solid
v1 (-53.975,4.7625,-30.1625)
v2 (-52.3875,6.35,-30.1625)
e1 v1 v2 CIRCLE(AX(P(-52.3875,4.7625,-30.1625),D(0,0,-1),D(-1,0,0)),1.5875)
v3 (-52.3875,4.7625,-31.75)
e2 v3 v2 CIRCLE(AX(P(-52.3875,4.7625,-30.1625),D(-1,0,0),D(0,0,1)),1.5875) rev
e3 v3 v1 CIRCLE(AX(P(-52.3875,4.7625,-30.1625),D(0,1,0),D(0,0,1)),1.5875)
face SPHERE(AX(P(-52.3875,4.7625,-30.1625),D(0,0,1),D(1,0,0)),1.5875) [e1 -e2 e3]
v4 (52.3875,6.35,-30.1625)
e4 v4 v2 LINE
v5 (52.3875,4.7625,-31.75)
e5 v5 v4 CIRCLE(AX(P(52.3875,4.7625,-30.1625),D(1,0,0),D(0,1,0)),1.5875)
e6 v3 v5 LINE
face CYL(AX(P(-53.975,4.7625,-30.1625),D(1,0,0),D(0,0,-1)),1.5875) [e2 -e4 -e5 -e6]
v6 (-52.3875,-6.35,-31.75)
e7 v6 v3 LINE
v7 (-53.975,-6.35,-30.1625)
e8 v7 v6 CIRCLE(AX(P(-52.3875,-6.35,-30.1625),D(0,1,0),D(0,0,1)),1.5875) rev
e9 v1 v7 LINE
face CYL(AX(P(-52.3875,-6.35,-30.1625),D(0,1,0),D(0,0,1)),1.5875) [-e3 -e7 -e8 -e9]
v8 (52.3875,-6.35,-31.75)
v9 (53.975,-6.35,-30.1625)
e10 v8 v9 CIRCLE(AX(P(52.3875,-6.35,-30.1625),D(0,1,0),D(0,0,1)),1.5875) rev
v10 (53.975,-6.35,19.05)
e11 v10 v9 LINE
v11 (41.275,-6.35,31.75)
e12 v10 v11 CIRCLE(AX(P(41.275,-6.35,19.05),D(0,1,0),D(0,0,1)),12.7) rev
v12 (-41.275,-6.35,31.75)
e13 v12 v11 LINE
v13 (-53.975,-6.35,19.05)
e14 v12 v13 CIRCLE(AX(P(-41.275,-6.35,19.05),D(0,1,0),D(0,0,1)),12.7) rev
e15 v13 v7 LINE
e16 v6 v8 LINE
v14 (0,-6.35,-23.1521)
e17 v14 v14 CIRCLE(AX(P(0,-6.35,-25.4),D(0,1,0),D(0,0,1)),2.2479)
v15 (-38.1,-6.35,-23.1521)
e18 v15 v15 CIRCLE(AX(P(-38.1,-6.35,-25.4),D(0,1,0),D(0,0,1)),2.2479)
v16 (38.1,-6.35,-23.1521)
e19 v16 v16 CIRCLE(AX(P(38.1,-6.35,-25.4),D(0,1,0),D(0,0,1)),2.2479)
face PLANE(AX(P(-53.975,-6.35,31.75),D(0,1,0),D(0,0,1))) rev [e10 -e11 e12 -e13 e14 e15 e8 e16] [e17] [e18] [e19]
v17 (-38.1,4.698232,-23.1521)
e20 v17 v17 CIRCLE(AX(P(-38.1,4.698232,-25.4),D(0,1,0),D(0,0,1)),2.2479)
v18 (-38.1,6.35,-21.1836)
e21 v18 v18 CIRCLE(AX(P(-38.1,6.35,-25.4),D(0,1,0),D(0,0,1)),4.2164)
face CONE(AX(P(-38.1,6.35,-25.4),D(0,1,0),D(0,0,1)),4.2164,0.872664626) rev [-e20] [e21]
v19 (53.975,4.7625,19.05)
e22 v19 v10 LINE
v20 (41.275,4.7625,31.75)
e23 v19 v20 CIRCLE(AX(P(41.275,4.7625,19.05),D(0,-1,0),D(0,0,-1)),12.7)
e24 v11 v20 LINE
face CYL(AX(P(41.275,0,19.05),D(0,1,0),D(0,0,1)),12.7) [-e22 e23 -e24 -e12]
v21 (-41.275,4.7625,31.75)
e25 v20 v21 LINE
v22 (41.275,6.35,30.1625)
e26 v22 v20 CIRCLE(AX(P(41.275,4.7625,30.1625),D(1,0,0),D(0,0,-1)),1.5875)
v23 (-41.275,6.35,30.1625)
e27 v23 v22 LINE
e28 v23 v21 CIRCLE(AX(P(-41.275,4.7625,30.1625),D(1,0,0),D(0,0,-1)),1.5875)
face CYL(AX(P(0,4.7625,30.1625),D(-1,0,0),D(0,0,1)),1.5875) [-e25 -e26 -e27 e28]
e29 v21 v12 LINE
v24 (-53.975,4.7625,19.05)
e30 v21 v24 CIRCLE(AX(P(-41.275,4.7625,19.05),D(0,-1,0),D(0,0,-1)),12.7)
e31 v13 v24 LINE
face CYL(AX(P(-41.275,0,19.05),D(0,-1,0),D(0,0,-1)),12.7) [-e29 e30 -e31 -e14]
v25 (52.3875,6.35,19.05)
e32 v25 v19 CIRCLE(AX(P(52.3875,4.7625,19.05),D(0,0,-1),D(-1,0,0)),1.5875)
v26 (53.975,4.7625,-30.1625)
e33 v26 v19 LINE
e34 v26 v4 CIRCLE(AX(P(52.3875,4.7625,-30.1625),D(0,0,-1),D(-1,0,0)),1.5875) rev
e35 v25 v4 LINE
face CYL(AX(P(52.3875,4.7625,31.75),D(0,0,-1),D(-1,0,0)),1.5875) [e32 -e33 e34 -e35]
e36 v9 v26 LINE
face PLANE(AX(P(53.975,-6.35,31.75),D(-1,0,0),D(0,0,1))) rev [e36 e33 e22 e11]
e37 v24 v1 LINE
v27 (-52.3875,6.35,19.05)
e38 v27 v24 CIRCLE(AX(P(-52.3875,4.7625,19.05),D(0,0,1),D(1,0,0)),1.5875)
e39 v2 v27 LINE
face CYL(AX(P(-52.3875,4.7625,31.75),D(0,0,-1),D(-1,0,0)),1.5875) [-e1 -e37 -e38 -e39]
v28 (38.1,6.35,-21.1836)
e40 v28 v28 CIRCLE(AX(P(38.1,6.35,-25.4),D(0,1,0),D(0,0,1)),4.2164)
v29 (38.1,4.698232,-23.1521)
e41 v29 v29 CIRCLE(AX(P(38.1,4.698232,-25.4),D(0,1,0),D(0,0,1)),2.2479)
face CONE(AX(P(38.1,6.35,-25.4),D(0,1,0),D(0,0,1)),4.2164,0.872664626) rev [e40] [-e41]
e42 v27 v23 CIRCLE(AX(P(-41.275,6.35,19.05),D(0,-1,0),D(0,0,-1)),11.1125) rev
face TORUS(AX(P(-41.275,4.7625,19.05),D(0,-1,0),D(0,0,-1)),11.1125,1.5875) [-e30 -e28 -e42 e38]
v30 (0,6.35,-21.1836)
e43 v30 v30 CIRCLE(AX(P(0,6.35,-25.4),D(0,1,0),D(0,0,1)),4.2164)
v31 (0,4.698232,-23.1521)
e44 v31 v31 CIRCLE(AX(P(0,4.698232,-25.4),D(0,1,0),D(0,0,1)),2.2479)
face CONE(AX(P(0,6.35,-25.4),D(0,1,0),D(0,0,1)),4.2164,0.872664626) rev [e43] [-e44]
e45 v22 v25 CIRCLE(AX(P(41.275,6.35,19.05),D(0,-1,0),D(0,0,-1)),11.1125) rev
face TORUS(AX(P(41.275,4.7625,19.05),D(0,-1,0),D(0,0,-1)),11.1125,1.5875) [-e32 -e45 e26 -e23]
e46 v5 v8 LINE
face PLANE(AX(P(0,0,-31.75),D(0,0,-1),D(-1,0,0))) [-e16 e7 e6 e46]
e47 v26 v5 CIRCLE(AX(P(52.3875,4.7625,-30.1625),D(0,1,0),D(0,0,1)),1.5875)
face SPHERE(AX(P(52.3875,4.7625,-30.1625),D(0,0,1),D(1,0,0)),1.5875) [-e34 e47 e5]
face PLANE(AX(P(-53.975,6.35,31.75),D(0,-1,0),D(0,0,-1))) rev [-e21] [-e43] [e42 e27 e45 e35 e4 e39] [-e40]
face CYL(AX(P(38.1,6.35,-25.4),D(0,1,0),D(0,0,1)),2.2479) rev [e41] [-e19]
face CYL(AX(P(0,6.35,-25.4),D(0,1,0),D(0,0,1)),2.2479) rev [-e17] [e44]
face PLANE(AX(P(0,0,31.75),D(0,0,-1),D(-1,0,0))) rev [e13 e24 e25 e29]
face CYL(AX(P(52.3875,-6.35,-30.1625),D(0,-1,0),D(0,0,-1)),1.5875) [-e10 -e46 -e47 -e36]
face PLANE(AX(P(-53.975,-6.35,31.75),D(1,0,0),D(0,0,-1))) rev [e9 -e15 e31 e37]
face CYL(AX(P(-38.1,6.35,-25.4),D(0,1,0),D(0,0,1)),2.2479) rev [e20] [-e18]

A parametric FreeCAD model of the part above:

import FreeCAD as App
import Part
import Sketcher
Q = App.Units.Quantity


def edges_at(feature, points):
    """Names of the edges that pass closest to the given points."""
    edges = feature.Shape.Edges
    near = lambda p: min(range(len(edges)), key=lambda i: edges[i].distToShape(Part.Vertex(*p))[0])
    return sorted({f"Edge{near(p) + 1}" for p in points})

doc = App.newDocument("Part")
body = doc.addObject("PartDesign::Body", "Body")

sketch1 = body.newObject("Sketcher::SketchObject", "Sketch")
sketch1.AttachmentSupport = (doc.getObject("XY_Plane"), [""])
sketch1.MapMode = "FlatFace"
sketch1.addGeometry(Part.LineSegment(App.Vector(-54, 6, 0), App.Vector(-54, -6, 0)), False)
sketch1.addGeometry(Part.LineSegment(App.Vector(-54, -6, 0), App.Vector(54, -6, 0)), False)
sketch1.addGeometry(Part.LineSegment(App.Vector(54, -6, 0), App.Vector(54, 6, 0)), False)
sketch1.addGeometry(Part.LineSegment(App.Vector(54, 6, 0), App.Vector(-54, 6, 0)), False)
sketch1.addConstraint(Sketcher.Constraint("Coincident", 0, 2, 1, 1))
sketch1.addConstraint(Sketcher.Constraint("Coincident", 1, 2, 2, 1))
sketch1.addConstraint(Sketcher.Constraint("Coincident", 2, 2, 3, 1))
sketch1.addConstraint(Sketcher.Constraint("Coincident", 3, 2, 0, 1))
sketch1.addConstraint(Sketcher.Constraint("Vertical", 0))
sketch1.addConstraint(Sketcher.Constraint("Horizontal", 1))
sketch1.addConstraint(Sketcher.Constraint("Vertical", 2))
sketch1.addConstraint(Sketcher.Constraint("Horizontal", 3))
sketch1.addConstraint(Sketcher.Constraint("Symmetric", 0, 2, 2, 2, -1, 1))
sketch1.addConstraint(Sketcher.Constraint("DistanceY", 0, 2, 0, 1, Q("0.5 in")))
sketch1.addConstraint(Sketcher.Constraint("DistanceX", 1, 1, 1, 2, Q("4.25 in")))
pad1 = body.newObject("PartDesign::Pad", "Pad")
pad1.Profile = sketch1
pad1.Length = Q("2.5 in")
pad1.Midplane = True
doc.recompute()

fillet = body.newObject("PartDesign::Fillet", "Fillet")
fillet.Base = (pad1, edges_at(pad1, [(-53.975, 0, 31.75), (53.975, 0, 31.75)]))
fillet.Radius = Q("0.5 in")

sketch2 = body.newObject("Sketcher::SketchObject", "Sketch001")
sketch2.AttachmentSupport = (doc.getObject("XZ_Plane"), [""])
sketch2.MapMode = "FlatFace"
sketch2.AttachmentOffset = App.Placement(App.Vector(0, 0, -0.25 * 25.4), App.Rotation())
sketch2.addGeometry(Part.Circle(App.Vector(-38.1, -25.4, 0), App.Vector(0, 0, 1), 2.2), False)
sketch2.addGeometry(Part.Circle(App.Vector(38.1, -25.4, 0), App.Vector(0, 0, 1), 2.2), False)
sketch2.addGeometry(Part.Circle(App.Vector(0, -25.4, 0), App.Vector(0, 0, 1), 2.2), False)
sketch2.addConstraint(Sketcher.Constraint("Equal", 0, 1))
sketch2.addConstraint(Sketcher.Constraint("Equal", 1, 2))
sketch2.addConstraint(Sketcher.Constraint("Symmetric", 0, 3, 1, 3, -2))
sketch2.addConstraint(Sketcher.Constraint("PointOnObject", 2, 3, -2))
sketch2.addConstraint(Sketcher.Constraint("Horizontal", 1, 3, 2, 3))
sketch2.addConstraint(Sketcher.Constraint("Diameter", 0, Q("0.177 in")))
sketch2.addConstraint(Sketcher.Constraint("DistanceY", 0, 3, -1, 1, Q("1 in")))
sketch2.addConstraint(Sketcher.Constraint("DistanceX", 0, 3, 1, 3, Q("3 in")))
doc.recompute()
hole = body.newObject("PartDesign::Hole", "Hole")
hole.Profile = sketch2
hole.ThreadType = "None"
hole.Diameter = Q("0.177 in")
hole.DepthType = "Dimension"
hole.Depth = Q("0.75 in")
hole.DrillPoint = "Angled"
hole.DrillPointAngle = 118
hole.HoleCutType = "Countersink"
hole.HoleCutDiameter = Q("0.332 in")
hole.HoleCutCountersinkAngle = 100
hole.Reversed = True
doc.recompute()

fillet2 = body.newObject("PartDesign::Fillet", "Fillet001")
fillet2.Base = (hole, edges_at(hole, [
    (0, 6.35, 31.75),
    (-53.975, 6.35, -6.35),
    (53.975, 6.35, -6.35),
    (50.255, 6.35, 28.03),
    (-50.255, 6.35, 28.03),
    (-53.975, 0, -31.75),
    (0, 6.35, -31.75),
    (53.975, 0, -31.75),
]))
fillet2.Radius = Q("0.0625 in")

doc.recompute()
